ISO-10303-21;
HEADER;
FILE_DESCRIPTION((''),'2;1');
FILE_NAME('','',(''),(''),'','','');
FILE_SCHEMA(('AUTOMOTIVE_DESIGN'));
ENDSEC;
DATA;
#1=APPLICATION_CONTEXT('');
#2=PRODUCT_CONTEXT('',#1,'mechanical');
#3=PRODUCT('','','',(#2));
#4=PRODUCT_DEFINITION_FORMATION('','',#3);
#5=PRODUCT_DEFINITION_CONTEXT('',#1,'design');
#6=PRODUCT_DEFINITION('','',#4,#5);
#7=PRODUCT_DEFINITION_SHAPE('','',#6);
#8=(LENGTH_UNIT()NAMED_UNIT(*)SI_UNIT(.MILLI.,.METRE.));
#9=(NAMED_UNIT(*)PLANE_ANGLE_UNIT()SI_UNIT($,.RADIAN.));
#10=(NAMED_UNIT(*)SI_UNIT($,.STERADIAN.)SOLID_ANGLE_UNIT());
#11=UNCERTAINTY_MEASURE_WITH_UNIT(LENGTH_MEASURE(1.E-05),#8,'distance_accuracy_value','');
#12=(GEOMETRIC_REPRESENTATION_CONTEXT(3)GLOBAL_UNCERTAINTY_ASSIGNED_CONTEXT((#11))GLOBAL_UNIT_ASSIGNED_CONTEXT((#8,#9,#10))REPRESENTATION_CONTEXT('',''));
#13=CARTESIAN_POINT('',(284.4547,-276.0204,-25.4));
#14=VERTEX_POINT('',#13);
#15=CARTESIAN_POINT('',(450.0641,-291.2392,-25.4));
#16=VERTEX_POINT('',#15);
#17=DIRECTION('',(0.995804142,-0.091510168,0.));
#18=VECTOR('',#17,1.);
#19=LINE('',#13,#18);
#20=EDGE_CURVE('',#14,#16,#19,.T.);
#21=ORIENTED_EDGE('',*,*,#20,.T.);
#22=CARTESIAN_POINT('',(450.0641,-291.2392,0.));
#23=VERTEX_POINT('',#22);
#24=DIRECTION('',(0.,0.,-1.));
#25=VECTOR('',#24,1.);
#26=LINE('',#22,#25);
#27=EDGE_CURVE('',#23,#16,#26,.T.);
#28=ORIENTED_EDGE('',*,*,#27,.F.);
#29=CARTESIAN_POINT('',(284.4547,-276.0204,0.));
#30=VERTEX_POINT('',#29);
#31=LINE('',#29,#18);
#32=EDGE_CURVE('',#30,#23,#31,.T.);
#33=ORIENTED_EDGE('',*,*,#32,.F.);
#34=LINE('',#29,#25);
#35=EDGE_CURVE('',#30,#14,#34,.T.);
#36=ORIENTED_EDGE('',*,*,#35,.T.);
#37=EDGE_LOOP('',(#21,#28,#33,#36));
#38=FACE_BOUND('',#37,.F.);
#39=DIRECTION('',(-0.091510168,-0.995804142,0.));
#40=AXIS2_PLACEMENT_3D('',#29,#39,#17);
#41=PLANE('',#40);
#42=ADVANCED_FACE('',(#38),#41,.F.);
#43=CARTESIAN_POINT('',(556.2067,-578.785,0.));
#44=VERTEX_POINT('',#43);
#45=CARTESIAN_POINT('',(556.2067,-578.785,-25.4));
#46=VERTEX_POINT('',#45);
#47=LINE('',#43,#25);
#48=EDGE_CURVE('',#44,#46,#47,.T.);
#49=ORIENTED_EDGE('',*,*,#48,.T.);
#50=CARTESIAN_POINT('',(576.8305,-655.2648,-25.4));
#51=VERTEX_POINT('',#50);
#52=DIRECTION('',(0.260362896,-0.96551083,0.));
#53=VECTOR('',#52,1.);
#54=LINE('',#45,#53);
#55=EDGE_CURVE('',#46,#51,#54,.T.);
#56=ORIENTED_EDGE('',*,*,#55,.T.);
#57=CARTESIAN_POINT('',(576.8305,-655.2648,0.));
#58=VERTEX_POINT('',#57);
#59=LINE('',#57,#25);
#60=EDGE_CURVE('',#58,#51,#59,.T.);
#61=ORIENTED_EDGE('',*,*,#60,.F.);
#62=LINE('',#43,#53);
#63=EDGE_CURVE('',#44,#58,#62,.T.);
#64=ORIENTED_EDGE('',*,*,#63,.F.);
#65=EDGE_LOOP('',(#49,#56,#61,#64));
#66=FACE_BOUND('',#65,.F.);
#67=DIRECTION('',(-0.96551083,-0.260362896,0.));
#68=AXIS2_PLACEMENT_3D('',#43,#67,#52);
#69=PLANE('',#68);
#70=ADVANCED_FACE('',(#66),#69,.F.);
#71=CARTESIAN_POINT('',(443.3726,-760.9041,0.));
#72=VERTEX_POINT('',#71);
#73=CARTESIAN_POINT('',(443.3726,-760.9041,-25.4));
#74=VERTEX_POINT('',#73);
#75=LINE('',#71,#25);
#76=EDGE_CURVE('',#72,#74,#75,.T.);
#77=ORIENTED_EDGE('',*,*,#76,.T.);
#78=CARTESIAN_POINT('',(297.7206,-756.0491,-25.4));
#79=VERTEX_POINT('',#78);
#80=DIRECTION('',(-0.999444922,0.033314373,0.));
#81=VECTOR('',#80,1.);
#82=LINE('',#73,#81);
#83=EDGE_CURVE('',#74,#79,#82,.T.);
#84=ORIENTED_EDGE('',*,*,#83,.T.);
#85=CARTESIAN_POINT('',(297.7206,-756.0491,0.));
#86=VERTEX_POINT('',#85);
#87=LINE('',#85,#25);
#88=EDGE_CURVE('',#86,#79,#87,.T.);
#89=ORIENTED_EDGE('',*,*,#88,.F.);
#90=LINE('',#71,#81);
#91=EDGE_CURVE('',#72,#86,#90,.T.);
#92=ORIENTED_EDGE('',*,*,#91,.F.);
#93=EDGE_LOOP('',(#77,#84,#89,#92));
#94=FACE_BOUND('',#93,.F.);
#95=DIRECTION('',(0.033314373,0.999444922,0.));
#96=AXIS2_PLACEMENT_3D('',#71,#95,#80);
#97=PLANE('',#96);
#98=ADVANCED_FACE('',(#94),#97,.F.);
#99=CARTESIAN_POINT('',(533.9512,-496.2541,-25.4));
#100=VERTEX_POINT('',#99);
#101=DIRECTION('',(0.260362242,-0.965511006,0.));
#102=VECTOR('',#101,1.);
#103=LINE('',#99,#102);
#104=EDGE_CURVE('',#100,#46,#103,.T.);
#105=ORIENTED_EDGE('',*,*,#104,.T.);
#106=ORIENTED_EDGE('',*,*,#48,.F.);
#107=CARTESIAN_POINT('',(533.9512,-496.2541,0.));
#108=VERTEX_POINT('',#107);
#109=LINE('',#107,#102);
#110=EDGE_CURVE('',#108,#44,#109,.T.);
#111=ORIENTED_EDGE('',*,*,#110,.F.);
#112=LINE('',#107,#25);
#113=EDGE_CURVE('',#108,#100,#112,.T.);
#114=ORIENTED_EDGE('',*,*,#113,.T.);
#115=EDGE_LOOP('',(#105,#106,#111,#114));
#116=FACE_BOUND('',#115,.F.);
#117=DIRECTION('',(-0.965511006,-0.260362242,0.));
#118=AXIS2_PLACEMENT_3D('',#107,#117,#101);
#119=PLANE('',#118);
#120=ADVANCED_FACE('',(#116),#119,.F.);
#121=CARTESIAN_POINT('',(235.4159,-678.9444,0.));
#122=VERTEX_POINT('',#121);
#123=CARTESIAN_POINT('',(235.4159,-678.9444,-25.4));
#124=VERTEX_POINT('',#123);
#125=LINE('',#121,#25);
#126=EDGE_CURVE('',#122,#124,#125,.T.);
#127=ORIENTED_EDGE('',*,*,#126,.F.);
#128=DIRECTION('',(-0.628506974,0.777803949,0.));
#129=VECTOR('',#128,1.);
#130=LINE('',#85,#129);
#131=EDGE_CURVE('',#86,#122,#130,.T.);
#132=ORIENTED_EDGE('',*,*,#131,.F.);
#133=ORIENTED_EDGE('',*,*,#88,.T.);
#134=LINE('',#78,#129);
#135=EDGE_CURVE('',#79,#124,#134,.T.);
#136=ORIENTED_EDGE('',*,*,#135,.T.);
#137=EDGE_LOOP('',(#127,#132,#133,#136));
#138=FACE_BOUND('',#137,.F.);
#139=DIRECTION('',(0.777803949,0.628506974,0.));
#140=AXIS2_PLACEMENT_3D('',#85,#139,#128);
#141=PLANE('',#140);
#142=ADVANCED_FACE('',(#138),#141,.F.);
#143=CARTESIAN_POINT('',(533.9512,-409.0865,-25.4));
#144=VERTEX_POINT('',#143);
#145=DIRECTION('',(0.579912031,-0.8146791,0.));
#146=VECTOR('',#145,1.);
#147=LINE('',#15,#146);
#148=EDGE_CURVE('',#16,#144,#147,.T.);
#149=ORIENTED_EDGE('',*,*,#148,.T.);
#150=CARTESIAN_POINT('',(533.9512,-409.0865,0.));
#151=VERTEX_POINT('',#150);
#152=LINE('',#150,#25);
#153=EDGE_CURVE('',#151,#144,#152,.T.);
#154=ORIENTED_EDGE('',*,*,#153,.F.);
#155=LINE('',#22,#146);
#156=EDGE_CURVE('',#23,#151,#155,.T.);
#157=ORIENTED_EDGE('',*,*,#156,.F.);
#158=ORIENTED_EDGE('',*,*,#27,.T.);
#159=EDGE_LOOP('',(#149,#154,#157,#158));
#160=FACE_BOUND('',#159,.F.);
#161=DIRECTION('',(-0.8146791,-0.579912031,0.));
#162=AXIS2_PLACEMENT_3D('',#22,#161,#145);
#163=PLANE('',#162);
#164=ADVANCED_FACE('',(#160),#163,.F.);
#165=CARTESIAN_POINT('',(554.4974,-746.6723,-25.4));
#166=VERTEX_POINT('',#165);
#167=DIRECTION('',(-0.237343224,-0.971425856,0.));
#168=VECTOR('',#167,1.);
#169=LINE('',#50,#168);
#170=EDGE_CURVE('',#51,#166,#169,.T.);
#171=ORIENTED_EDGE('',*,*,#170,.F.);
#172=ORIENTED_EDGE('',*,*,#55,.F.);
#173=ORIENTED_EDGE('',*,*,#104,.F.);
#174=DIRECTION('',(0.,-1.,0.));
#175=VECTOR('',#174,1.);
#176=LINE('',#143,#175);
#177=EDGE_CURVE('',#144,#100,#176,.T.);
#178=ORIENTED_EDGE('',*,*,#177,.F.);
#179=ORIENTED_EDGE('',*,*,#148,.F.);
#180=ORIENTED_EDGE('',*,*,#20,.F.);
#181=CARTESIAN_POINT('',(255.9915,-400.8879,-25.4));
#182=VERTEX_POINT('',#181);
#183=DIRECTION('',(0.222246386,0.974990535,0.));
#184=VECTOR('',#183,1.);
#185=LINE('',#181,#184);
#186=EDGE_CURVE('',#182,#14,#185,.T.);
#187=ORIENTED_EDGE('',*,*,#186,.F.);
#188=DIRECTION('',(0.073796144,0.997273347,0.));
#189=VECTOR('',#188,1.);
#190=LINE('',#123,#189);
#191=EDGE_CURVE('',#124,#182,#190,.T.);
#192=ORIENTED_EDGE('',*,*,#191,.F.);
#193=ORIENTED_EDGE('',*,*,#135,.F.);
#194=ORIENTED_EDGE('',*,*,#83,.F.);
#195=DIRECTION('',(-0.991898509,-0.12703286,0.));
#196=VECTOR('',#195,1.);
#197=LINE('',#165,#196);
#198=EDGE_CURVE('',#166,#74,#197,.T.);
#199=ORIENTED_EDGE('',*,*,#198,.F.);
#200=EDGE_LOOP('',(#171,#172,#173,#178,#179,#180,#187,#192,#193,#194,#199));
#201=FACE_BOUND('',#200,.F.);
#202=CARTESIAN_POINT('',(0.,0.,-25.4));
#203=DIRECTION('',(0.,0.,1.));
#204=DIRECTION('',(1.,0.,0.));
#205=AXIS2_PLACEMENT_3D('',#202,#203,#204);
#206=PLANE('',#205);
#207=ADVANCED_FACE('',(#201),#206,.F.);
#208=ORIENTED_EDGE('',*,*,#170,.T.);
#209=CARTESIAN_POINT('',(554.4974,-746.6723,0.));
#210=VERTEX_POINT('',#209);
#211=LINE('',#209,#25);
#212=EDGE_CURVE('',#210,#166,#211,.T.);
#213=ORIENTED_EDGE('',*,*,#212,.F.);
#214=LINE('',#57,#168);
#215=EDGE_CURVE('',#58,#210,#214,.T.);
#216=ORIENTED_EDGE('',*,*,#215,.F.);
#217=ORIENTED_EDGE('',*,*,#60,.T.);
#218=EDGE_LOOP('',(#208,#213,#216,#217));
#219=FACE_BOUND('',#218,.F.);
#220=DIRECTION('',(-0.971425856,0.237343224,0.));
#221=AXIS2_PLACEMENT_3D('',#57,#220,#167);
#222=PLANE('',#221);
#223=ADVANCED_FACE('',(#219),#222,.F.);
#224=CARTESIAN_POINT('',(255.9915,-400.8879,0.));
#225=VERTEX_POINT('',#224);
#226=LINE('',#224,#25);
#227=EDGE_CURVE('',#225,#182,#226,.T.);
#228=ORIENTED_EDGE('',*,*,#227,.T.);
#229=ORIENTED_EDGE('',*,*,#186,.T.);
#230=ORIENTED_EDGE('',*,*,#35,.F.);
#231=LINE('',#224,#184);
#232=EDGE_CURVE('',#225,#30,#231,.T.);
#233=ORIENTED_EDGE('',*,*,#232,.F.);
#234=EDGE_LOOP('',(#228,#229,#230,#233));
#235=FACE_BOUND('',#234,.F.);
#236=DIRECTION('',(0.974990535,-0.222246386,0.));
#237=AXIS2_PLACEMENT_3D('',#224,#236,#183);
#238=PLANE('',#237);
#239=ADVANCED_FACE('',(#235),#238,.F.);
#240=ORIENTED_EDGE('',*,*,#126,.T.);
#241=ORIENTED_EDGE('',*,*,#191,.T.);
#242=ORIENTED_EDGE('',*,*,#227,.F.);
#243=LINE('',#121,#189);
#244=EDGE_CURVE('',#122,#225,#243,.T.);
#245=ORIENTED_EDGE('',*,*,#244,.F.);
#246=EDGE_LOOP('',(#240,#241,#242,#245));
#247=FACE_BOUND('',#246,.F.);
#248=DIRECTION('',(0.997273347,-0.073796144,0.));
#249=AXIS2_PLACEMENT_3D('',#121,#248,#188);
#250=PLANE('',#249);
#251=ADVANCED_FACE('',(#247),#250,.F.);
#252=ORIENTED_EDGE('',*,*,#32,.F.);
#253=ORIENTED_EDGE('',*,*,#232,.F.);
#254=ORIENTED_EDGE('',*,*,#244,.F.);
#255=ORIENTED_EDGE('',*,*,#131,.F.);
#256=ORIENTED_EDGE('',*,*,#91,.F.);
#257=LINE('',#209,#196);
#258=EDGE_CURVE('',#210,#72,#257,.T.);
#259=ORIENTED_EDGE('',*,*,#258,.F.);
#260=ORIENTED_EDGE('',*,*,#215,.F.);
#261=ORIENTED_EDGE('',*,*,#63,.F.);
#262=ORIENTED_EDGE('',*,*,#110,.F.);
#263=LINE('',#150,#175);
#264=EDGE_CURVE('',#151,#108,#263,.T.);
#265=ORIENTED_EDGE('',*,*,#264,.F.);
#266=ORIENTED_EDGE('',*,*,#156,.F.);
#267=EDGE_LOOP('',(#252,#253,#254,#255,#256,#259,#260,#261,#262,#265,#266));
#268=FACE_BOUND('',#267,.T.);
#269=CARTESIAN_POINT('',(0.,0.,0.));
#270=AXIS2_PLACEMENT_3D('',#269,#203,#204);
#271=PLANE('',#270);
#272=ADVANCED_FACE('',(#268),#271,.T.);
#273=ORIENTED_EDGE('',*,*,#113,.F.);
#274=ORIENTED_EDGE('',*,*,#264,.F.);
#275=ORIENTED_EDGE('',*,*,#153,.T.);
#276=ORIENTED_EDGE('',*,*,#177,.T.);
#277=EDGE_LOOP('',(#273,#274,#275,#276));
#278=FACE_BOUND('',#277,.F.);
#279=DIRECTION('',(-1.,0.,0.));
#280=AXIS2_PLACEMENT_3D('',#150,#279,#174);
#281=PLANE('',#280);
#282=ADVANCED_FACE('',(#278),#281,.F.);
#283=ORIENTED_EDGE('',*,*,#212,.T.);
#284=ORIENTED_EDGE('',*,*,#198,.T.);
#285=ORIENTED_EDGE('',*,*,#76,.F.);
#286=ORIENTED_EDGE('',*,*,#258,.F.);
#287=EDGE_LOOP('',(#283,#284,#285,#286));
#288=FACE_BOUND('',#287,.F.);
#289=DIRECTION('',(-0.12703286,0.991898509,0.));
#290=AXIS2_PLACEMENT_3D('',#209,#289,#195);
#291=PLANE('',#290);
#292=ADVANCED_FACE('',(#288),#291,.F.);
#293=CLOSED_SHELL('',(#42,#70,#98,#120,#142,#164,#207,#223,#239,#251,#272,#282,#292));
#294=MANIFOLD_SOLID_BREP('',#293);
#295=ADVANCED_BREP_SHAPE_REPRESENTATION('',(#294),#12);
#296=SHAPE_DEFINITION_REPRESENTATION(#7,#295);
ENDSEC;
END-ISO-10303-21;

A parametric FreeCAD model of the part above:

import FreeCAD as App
import Part
import Sketcher
Q = App.Units.Quantity


def add_polygon(sketch, points):
    """Adds a closed chain of lines whose ends are joined by coincident constraints."""
    first, n = sketch.GeometryCount, len(points)
    for a, b in zip(points, points[1:] + points[:1]):
        sketch.addGeometry(Part.LineSegment(App.Vector(*a, 0), App.Vector(*b, 0)), False)
    for i in range(n):
        sketch.addConstraint(Sketcher.Constraint("Coincident", first + i, 2, first + (i + 1) % n, 1))

doc = App.newDocument("Part")
body = doc.addObject("PartDesign::Body", "Body")

sketch1 = body.newObject("Sketcher::SketchObject", "Sketch")
sketch1.AttachmentSupport = (doc.getObject("XY_Plane"), [""])
sketch1.MapMode = "FlatFace"
add_polygon(sketch1, [(533.9512, -409.0865), (450.0641, -291.2392), (284.4547, -276.0204), (255.9915, -400.8879), (235.4159, -678.9444), (297.7206, -756.0491), (443.3726, -760.9041), (554.4974, -746.6723), (576.8305, -655.2648), (556.2067, -578.785), (533.9512, -496.2541)])
sketch1.addConstraint(Sketcher.Constraint("Vertical", 10))
sketch1.addConstraint(Sketcher.Constraint("DistanceY", 5, 2, 1, 2, Q("19.0899 in")))
sketch1.addConstraint(Sketcher.Constraint("DistanceX", 3, 2, 7, 2, Q("341.4146 mm")))
sketch1.addConstraint(Sketcher.Constraint("DistanceY", 10, 1, 10, 2, Q("3.4318 in")))
sketch1.addConstraint(Sketcher.Constraint("DistanceX", -1, 1, 1, 2, Q("11.199 in")))
sketch1.addConstraint(Sketcher.Constraint("DistanceY", 2, 2, -1, 1, Q("15.783 in")))
sketch1.addConstraint(Sketcher.Constraint("DistanceX", 5, 2, 6, 2, Q("4.375 in")))
sketch1.addConstraint(Sketcher.Constraint("Distance", 4, Q("3.9028 in")))
sketch1.addConstraint(Sketcher.Constraint("DistanceY", 0, 2, -1, 1, Q("11.4661 in")))
sketch1.addConstraint(Sketcher.Constraint("DistanceX", -1, 1, 2, 2, Q("10.0784 in")))
sketch1.addConstraint(Sketcher.Constraint("DistanceY", 3, 2, -1, 1, Q("26.7301 in")))
sketch1.addConstraint(Sketcher.Constraint("DistanceX", -1, 1, 6, 2, Q("21.8306 in")))
sketch1.addConstraint(Sketcher.Constraint("DistanceX", -1, 1, 8, 2, Q("21.8979 in")))
sketch1.addConstraint(Sketcher.Constraint("DistanceY", 8, 2, -1, 1, Q("22.7868 in")))
sketch1.addConstraint(Sketcher.Constraint("DistanceX", -1, 1, 9, 2, Q("21.0217 in")))
sketch1.addConstraint(Sketcher.Constraint("DistanceY", 4, 2, 0, 2, Q("18.2996 in")))
sketch1.addConstraint(Sketcher.Constraint("DistanceY", 5, 2, 6, 2, Q("0.5603 in")))
sketch1.addConstraint(Sketcher.Constraint("DistanceX", 0, 2, 7, 2, Q("4.9908 in")))
sketch1.addConstraint(Sketcher.Constraint("DistanceY", 5, 2, 9, 2, Q("10.4193 in")))
sketch1.addConstraint(Sketcher.Constraint("Distance", 0, Q("144.6549 mm")))
sketch1.addConstraint(Sketcher.Constraint("Distance", 1, Q("166.3072 mm")))
sketch1.addConstraint(Sketcher.Constraint("Distance", 7, Q("94.0962 mm")))
pad1 = body.newObject("PartDesign::Pad", "Pad")
pad1.Profile = sketch1
pad1.Length = Q("1 in")
pad1.Reversed = True

doc.recompute()
